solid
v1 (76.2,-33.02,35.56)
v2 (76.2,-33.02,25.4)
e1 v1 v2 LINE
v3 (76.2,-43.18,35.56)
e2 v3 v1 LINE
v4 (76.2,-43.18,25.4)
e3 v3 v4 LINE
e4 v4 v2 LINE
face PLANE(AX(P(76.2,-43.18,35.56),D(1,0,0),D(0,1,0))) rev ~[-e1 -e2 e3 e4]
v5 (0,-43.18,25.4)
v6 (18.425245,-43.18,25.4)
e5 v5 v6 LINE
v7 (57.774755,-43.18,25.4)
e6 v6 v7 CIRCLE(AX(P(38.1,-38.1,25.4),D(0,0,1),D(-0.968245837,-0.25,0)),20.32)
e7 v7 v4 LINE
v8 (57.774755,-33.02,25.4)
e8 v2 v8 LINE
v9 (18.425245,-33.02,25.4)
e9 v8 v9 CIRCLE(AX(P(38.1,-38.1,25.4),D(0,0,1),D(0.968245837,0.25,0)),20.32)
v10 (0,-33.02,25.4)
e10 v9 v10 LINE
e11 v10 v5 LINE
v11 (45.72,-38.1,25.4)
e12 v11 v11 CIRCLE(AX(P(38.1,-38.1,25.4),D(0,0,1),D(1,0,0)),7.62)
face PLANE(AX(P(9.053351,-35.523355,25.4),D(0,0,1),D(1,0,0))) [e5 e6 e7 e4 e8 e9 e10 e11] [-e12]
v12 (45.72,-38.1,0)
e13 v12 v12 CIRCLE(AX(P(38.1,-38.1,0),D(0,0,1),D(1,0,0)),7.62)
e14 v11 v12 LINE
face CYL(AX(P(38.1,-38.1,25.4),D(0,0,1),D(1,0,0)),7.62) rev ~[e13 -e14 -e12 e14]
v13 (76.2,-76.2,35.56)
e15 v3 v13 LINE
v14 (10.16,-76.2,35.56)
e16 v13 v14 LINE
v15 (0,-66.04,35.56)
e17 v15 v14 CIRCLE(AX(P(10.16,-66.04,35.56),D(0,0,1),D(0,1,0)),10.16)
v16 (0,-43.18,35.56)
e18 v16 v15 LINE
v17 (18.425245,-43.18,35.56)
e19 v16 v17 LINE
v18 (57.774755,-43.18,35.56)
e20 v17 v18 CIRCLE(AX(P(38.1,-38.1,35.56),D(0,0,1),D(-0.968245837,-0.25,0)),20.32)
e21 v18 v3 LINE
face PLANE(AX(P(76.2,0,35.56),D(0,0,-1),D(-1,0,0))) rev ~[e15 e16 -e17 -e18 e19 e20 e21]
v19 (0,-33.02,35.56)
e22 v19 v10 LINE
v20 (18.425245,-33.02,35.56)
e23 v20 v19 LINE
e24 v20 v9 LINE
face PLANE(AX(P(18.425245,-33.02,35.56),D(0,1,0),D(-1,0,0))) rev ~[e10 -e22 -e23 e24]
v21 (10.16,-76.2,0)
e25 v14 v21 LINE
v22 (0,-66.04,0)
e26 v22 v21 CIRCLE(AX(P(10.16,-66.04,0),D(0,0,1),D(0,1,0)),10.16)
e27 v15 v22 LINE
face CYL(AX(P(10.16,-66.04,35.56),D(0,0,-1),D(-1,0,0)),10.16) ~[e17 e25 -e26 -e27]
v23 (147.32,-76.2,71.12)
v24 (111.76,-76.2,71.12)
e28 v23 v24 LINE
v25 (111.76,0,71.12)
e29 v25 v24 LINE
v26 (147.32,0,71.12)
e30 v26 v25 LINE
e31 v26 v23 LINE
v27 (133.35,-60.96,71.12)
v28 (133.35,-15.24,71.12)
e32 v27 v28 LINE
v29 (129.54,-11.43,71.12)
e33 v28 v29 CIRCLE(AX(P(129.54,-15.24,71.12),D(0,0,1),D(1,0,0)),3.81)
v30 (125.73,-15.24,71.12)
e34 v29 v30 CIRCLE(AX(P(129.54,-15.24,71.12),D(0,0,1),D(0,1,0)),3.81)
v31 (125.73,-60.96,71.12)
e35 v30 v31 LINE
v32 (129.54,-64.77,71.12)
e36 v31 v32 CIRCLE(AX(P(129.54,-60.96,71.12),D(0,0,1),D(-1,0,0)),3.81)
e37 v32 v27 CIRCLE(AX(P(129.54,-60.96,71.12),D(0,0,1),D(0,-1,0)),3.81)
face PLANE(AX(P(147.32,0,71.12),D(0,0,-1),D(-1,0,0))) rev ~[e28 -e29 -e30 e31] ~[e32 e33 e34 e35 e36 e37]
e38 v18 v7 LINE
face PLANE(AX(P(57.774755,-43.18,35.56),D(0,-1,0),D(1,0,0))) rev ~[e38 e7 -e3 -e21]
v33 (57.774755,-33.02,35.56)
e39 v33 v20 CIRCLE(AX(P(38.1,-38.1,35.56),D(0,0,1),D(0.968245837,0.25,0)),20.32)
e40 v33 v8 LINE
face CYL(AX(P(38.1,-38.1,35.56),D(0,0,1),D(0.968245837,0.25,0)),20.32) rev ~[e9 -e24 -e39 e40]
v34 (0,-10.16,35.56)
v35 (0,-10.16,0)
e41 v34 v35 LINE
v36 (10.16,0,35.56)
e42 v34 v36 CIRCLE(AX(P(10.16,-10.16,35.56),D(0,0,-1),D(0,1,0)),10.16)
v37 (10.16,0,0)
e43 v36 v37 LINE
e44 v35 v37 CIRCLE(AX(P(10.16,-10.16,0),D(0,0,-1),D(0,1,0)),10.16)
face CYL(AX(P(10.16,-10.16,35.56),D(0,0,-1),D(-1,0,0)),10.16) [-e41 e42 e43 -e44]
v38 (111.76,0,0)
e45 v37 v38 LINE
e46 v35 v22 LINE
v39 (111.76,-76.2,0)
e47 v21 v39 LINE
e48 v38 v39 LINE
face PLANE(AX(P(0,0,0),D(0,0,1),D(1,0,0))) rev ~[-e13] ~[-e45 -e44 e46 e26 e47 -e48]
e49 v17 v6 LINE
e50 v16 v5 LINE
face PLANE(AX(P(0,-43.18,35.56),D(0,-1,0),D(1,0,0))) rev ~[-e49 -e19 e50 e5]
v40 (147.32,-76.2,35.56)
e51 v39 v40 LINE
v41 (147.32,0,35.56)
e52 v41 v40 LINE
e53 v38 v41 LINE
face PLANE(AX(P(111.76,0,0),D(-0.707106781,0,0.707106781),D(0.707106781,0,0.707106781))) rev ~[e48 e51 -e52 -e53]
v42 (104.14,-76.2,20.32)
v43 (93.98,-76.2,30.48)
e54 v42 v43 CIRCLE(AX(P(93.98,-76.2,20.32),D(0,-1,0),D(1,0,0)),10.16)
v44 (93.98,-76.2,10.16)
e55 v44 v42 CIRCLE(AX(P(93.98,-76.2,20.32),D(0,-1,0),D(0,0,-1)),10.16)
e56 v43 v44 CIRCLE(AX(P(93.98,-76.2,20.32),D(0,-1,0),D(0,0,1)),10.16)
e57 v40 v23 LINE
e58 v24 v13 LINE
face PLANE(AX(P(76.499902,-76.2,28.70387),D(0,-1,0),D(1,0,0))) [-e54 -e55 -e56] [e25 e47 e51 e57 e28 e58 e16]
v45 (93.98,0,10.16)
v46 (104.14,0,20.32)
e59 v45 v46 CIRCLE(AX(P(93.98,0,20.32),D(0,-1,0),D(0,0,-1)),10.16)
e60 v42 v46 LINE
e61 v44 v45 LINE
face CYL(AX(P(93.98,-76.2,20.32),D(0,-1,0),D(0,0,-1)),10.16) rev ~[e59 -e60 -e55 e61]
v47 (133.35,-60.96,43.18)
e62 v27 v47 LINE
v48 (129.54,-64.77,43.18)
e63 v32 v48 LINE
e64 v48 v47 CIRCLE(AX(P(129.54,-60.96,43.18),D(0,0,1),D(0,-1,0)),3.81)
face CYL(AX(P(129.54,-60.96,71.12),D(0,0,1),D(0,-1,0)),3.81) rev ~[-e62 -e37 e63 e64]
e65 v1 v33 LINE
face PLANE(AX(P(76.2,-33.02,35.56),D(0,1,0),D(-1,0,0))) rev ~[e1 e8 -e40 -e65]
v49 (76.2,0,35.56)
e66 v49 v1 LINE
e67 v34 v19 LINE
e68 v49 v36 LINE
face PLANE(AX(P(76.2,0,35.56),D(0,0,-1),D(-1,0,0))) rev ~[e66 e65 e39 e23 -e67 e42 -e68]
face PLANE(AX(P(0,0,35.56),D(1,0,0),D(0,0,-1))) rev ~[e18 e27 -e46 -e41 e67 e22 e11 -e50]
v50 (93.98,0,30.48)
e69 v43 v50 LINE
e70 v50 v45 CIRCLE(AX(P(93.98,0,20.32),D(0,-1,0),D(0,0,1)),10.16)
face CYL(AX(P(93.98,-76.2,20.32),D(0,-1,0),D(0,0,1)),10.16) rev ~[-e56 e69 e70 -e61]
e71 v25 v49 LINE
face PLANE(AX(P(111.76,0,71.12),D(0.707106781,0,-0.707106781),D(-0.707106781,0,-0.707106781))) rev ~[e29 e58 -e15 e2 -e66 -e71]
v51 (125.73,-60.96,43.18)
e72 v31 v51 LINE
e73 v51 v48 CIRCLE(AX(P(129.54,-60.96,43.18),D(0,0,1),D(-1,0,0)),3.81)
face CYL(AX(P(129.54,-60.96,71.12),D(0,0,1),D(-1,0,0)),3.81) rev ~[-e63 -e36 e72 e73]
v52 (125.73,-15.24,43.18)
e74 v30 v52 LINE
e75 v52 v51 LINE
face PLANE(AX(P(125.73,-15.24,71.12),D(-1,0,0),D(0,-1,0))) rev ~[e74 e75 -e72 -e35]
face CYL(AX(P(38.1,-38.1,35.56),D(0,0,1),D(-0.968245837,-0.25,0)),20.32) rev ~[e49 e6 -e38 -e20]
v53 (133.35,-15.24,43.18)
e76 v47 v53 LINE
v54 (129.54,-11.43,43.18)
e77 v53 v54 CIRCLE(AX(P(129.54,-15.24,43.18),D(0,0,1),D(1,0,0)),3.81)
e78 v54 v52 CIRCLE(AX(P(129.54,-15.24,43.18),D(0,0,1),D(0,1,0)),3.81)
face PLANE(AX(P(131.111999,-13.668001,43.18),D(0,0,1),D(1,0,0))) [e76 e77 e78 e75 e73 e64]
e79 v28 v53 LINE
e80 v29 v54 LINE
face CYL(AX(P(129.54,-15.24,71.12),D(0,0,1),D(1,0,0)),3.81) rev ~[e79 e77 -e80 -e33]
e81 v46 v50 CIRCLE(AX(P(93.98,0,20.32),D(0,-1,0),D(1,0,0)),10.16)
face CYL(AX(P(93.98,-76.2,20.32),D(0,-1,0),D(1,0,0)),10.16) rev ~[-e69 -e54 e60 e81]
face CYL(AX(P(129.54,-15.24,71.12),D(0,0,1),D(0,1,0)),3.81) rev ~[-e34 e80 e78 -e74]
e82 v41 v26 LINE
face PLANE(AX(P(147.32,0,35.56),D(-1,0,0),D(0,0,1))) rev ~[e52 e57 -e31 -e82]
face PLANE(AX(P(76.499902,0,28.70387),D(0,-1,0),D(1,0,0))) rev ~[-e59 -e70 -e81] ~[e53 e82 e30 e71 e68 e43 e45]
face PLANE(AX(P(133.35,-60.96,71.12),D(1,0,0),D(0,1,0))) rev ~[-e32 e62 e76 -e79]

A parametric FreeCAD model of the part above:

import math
import FreeCAD as App
import Part
import Sketcher
Q = App.Units.Quantity


def edges_at(feature, points):
    """Names of the edges that pass closest to the given points."""
    edges = feature.Shape.Edges
    near = lambda p: min(range(len(edges)), key=lambda i: edges[i].distToShape(Part.Vertex(*p))[0])
    return sorted({f"Edge{near(p) + 1}" for p in points})


def add_polygon(sketch, points):
    """Adds a closed chain of lines whose ends are joined by coincident constraints."""
    first, n = sketch.GeometryCount, len(points)
    for a, b in zip(points, points[1:] + points[:1]):
        sketch.addGeometry(Part.LineSegment(App.Vector(*a, 0), App.Vector(*b, 0)), False)
    for i in range(n):
        sketch.addConstraint(Sketcher.Constraint("Coincident", first + i, 2, first + (i + 1) % n, 1))

doc = App.newDocument("Part")
body = doc.addObject("PartDesign::Body", "Body")

sketch1 = body.newObject("Sketcher::SketchObject", "Sketch")
sketch1.AttachmentSupport = (doc.getObject("XZ_Plane"), [""])
sketch1.MapMode = "FlatFace"
add_polygon(sketch1, [(0, 36), (0, 0), (112, 0), (147, 36), (147, 71), (112, 71), (76, 36)])
sketch1.addConstraint(Sketcher.Constraint("Vertical", 0))
sketch1.addConstraint(Sketcher.Constraint("Horizontal", 1))
sketch1.addConstraint(Sketcher.Constraint("Vertical", 3))
sketch1.addConstraint(Sketcher.Constraint("Horizontal", 4))
sketch1.addConstraint(Sketcher.Constraint("Horizontal", 6))
sketch1.addConstraint(Sketcher.Constraint("Coincident", 0, 2, -1, 1))
sketch1.addConstraint(Sketcher.Constraint("Parallel", 2, 5))
sketch1.addConstraint(Sketcher.Constraint("Horizontal", 2, 2, 5, 2))
sketch1.addConstraint(Sketcher.Constraint("Vertical", 1, 2, 4, 2))
sketch1.addConstraint(Sketcher.Constraint("Equal", 4, 0))
sketch1.addConstraint(Sketcher.Constraint("Equal", 0, 3))
sketch1.addConstraint(Sketcher.Constraint("DistanceX", 6, 2, 6, 1, Q("3 in")))
sketch1.addConstraint(Sketcher.Constraint("DistanceX", 1, 1, 1, 2, Q("4.4 in")))
pad1 = body.newObject("PartDesign::Pad", "Pad")
pad1.Profile = sketch1
pad1.Length = Q("3 in")

sketch2 = body.newObject("Sketcher::SketchObject", "Sketch001")
sketch2.AttachmentSupport = (doc.getObject("XZ_Plane"), [""])
sketch2.MapMode = "FlatFace"
sketch2.AttachmentOffset = App.Placement(App.Vector(0, 0, 3 * 25.4), App.Rotation())
sketch2.addGeometry(Part.ArcOfCircle(Part.Circle(App.Vector(94, 20, 0), App.Vector(0, 0, 1), 10), math.radians(0), math.radians(90)), False)
sketch2.addGeometry(Part.ArcOfCircle(Part.Circle(App.Vector(94, 20, 0), App.Vector(0, 0, 1), 10), math.radians(90), math.radians(270)), False)
sketch2.addGeometry(Part.ArcOfCircle(Part.Circle(App.Vector(94, 20, 0), App.Vector(0, 0, 1), 10), math.radians(-90), math.radians(0)), False)
sketch2.addConstraint(Sketcher.Constraint("Tangent", 0, 2, 1, 1))
sketch2.addConstraint(Sketcher.Constraint("Tangent", 1, 2, 2, 1))
sketch2.addConstraint(Sketcher.Constraint("Tangent", 2, 2, 0, 1))
sketch2.addConstraint(Sketcher.Constraint("Horizontal", 1, 3, 2, 2))
sketch2.addConstraint(Sketcher.Constraint("Vertical", 2, 3, 0, 2))
sketch2.addConstraint(Sketcher.Constraint("Vertical", 0, 2, 1, 2))
sketch2.addConstraint(Sketcher.Constraint("Radius", 0, Q("0.4 in")))
sketch2.addConstraint(Sketcher.Constraint("DistanceX", -1, 1, 0, 3, Q("3.7 in")))
sketch2.addConstraint(Sketcher.Constraint("DistanceY", -1, 1, 0, 3, Q("0.8 in")))
pocket1 = body.newObject("PartDesign::Pocket", "Pocket")
pocket1.Profile = sketch2
pocket1.Length = Q("7 in")

sketch3 = body.newObject("Sketcher::SketchObject", "Sketch002")
sketch3.AttachmentSupport = (doc.getObject("XY_Plane"), [""])
sketch3.MapMode = "FlatFace"
sketch3.AttachmentOffset = App.Placement(App.Vector(0, 0, 2.8 * 25.4), App.Rotation())
sketch3.addGeometry(Part.LineSegment(App.Vector(125.7, -15.2, 0), App.Vector(125.7, -61, 0)), False)
sketch3.addGeometry(Part.ArcOfCircle(Part.Circle(App.Vector(129.5, -61, 0), App.Vector(0, 0, 1), 3.8), math.radians(180), math.radians(270)), False)
sketch3.addGeometry(Part.ArcOfCircle(Part.Circle(App.Vector(129.5, -61, 0), App.Vector(0, 0, 1), 3.8), math.radians(-90), math.radians(0)), False)
sketch3.addGeometry(Part.LineSegment(App.Vector(133.3, -61, 0), App.Vector(133.3, -15.2, 0)), False)
sketch3.addGeometry(Part.ArcOfCircle(Part.Circle(App.Vector(129.5, -15.2, 0), App.Vector(0, 0, 1), 3.8), math.radians(0), math.radians(90)), False)
sketch3.addGeometry(Part.ArcOfCircle(Part.Circle(App.Vector(129.5, -15.2, 0), App.Vector(0, 0, 1), 3.8), math.radians(90), math.radians(180)), False)
sketch3.addConstraint(Sketcher.Constraint("Tangent", 0, 2, 1, 1))
sketch3.addConstraint(Sketcher.Constraint("Tangent", 1, 2, 2, 1))
sketch3.addConstraint(Sketcher.Constraint("Tangent", 2, 2, 3, 1))
sketch3.addConstraint(Sketcher.Constraint("Tangent", 3, 2, 4, 1))
sketch3.addConstraint(Sketcher.Constraint("Tangent", 4, 2, 5, 1))
sketch3.addConstraint(Sketcher.Constraint("Tangent", 5, 2, 0, 1))
sketch3.addConstraint(Sketcher.Constraint("Vertical", 0))
sketch3.addConstraint(Sketcher.Constraint("Vertical", 3))
sketch3.addConstraint(Sketcher.Constraint("Equal", 1, 2))
sketch3.addConstraint(Sketcher.Constraint("Equal", 2, 4))
sketch3.addConstraint(Sketcher.Constraint("Vertical", 5, 3, 1, 2))
sketch3.addConstraint(Sketcher.Constraint("Vertical", 1, 2, 4, 2))
sketch3.addConstraint(Sketcher.Constraint("Radius", 1, Q("0.15 in")))
sketch3.addConstraint(Sketcher.Constraint("DistanceY", 0, 2, 0, 1, Q("1.8 in")))
sketch3.addConstraint(Sketcher.Constraint("DistanceX", -1, 1, 1, 3, Q("5.1 in")))
sketch3.addConstraint(Sketcher.Constraint("DistanceY", 1, 3, -1, 1, Q("2.4 in")))
pocket2 = body.newObject("PartDesign::Pocket", "Pocket001")
pocket2.Profile = sketch3
pocket2.Length = Q("1.1 in")

sketch4 = body.newObject("Sketcher::SketchObject", "Sketch003")
sketch4.AttachmentSupport = (doc.getObject("XY_Plane"), [""])
sketch4.MapMode = "FlatFace"
sketch4.AttachmentOffset = App.Placement(App.Vector(0, 0, 1.4 * 25.4), App.Rotation())
sketch4.addGeometry(Part.LineSegment(App.Vector(18, -33, 0), App.Vector(0, -33, 0)), False)
sketch4.addGeometry(Part.LineSegment(App.Vector(0, -33, 0), App.Vector(0, -43, 0)), False)
sketch4.addGeometry(Part.LineSegment(App.Vector(0, -43, 0), App.Vector(18, -43, 0)), False)
sketch4.addGeometry(Part.ArcOfCircle(Part.Circle(App.Vector(38, -38, 0), App.Vector(0, 0, 1), 20), math.radians(-166), math.radians(-14)), False)
sketch4.addGeometry(Part.LineSegment(App.Vector(58, -43, 0), App.Vector(76, -43, 0)), False)
sketch4.addGeometry(Part.LineSegment(App.Vector(76, -43, 0), App.Vector(76, -33, 0)), False)
sketch4.addGeometry(Part.LineSegment(App.Vector(76, -33, 0), App.Vector(58, -33, 0)), False)
sketch4.addGeometry(Part.ArcOfCircle(Part.Circle(App.Vector(38, -38, 0), App.Vector(0, 0, 1), 20), math.radians(14), math.radians(166)), False)
sketch4.addConstraint(Sketcher.Constraint("Coincident", 0, 2, 1, 1))
sketch4.addConstraint(Sketcher.Constraint("Coincident", 1, 2, 2, 1))
sketch4.addConstraint(Sketcher.Constraint("Coincident", 2, 2, 3, 1))
sketch4.addConstraint(Sketcher.Constraint("Coincident", 3, 2, 4, 1))
sketch4.addConstraint(Sketcher.Constraint("Coincident", 4, 2, 5, 1))
sketch4.addConstraint(Sketcher.Constraint("Coincident", 5, 2, 6, 1))
sketch4.addConstraint(Sketcher.Constraint("Coincident", 6, 2, 7, 1))
sketch4.addConstraint(Sketcher.Constraint("Coincident", 7, 2, 0, 1))
sketch4.addConstraint(Sketcher.Constraint("Horizontal", 0))
sketch4.addConstraint(Sketcher.Constraint("Vertical", 1))
sketch4.addConstraint(Sketcher.Constraint("Horizontal", 2))
sketch4.addConstraint(Sketcher.Constraint("Horizontal", 4))
sketch4.addConstraint(Sketcher.Constraint("Vertical", 5))
sketch4.addConstraint(Sketcher.Constraint("Horizontal", 6))
sketch4.addConstraint(Sketcher.Constraint("Coincident", 7, 3, 3, 3))
sketch4.addConstraint(Sketcher.Constraint("Equal", 3, 7))
sketch4.addConstraint(Sketcher.Constraint("PointOnObject", 0, 2, -2))
sketch4.addConstraint(Sketcher.Constraint("Horizontal", 2, 2, 3, 2))
sketch4.addConstraint(Sketcher.Constraint("Horizontal", 0, 2, 5, 2))
sketch4.addConstraint(Sketcher.Constraint("Vertical", 3, 2, 6, 2))
sketch4.addConstraint(Sketcher.Constraint("Equal", 2, 4))
sketch4.addConstraint(Sketcher.Constraint("Radius", 3, Q("0.8 in")))
sketch4.addConstraint(Sketcher.Constraint("DistanceY", 1, 2, 1, 1, Q("0.4 in")))
sketch4.addConstraint(Sketcher.Constraint("DistanceX", -1, 1, 4, 2, Q("3 in")))
sketch4.addConstraint(Sketcher.Constraint("DistanceY", 3, 3, -1, 1, Q("1.5 in")))
pocket3 = body.newObject("PartDesign::Pocket", "Pocket002")
pocket3.Profile = sketch4
pocket3.Length = Q("0.4 in")

sketch5 = body.newObject("Sketcher::SketchObject", "Sketch004")
sketch5.AttachmentSupport = (doc.getObject("XY_Plane"), [""])
sketch5.MapMode = "FlatFace"
sketch5.AttachmentOffset = App.Placement(App.Vector(0, 0, 1 * 25.4), App.Rotation())
sketch5.addGeometry(Part.Circle(App.Vector(38, -38, 0), App.Vector(0, 0, 1), 8), False)
sketch5.addConstraint(Sketcher.Constraint("Diameter", 0, Q("0.6 in")))
sketch5.addConstraint(Sketcher.Constraint("DistanceX", -1, 1, 0, 3, Q("1.5 in")))
sketch5.addConstraint(Sketcher.Constraint("DistanceY", 0, 3, -1, 1, Q("1.5 in")))
pocket4 = body.newObject("PartDesign::Pocket", "Pocket003")
pocket4.Profile = sketch5
pocket4.Length = Q("6 in")
doc.recompute()

fillet = body.newObject("PartDesign::Fillet", "Fillet")
fillet.Base = (pocket4, edges_at(pocket4, [(0, -76.2, 17.78), (0, 0, 17.78)]))
fillet.Radius = Q("0.4 in")

doc.recompute()
